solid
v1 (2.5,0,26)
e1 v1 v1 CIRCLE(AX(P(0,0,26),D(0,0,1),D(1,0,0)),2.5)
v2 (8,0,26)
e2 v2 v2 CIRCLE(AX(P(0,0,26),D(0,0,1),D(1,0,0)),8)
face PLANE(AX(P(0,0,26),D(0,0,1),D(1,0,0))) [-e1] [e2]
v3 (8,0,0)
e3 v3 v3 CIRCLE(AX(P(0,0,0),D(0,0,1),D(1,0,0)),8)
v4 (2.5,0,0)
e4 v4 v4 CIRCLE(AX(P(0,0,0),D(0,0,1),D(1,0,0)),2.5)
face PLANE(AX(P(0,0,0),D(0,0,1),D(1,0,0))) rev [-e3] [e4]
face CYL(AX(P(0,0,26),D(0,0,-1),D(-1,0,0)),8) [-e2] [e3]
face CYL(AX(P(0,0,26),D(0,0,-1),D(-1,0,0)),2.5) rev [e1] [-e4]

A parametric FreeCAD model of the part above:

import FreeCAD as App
import Part
import Sketcher
from FreeCAD import Vector
Q = App.Units.Quantity

doc = App.newDocument("Part")
body = doc.addObject("PartDesign::Body", "Body")

sketch1 = body.newObject("Sketcher::SketchObject", "Sketch")
sketch1.AttachmentSupport = (doc.getObject("XY_Plane"), [""])
sketch1.MapMode = "FlatFace"
sketch1.addGeometry([
    Part.Circle(Vector(0, 0, 0), Vector(0, 0, 1), 8),
    Part.Circle(Vector(0, 0, 0), Vector(0, 0, 1), 2.5),
], False)
sketch1.addConstraint([
    Sketcher.Constraint("Coincident", 0, 3, -1, 1),
    Sketcher.Constraint("Coincident", 1, 3, -1, 1),
    Sketcher.Constraint("Diameter", 0, Q("16 mm")),
    Sketcher.Constraint("Diameter", 1, Q("5 mm")),
])
pad1 = body.newObject("PartDesign::Pad", "Pad")
pad1.Profile = sketch1
pad1.Length = 26

doc.recompute()
